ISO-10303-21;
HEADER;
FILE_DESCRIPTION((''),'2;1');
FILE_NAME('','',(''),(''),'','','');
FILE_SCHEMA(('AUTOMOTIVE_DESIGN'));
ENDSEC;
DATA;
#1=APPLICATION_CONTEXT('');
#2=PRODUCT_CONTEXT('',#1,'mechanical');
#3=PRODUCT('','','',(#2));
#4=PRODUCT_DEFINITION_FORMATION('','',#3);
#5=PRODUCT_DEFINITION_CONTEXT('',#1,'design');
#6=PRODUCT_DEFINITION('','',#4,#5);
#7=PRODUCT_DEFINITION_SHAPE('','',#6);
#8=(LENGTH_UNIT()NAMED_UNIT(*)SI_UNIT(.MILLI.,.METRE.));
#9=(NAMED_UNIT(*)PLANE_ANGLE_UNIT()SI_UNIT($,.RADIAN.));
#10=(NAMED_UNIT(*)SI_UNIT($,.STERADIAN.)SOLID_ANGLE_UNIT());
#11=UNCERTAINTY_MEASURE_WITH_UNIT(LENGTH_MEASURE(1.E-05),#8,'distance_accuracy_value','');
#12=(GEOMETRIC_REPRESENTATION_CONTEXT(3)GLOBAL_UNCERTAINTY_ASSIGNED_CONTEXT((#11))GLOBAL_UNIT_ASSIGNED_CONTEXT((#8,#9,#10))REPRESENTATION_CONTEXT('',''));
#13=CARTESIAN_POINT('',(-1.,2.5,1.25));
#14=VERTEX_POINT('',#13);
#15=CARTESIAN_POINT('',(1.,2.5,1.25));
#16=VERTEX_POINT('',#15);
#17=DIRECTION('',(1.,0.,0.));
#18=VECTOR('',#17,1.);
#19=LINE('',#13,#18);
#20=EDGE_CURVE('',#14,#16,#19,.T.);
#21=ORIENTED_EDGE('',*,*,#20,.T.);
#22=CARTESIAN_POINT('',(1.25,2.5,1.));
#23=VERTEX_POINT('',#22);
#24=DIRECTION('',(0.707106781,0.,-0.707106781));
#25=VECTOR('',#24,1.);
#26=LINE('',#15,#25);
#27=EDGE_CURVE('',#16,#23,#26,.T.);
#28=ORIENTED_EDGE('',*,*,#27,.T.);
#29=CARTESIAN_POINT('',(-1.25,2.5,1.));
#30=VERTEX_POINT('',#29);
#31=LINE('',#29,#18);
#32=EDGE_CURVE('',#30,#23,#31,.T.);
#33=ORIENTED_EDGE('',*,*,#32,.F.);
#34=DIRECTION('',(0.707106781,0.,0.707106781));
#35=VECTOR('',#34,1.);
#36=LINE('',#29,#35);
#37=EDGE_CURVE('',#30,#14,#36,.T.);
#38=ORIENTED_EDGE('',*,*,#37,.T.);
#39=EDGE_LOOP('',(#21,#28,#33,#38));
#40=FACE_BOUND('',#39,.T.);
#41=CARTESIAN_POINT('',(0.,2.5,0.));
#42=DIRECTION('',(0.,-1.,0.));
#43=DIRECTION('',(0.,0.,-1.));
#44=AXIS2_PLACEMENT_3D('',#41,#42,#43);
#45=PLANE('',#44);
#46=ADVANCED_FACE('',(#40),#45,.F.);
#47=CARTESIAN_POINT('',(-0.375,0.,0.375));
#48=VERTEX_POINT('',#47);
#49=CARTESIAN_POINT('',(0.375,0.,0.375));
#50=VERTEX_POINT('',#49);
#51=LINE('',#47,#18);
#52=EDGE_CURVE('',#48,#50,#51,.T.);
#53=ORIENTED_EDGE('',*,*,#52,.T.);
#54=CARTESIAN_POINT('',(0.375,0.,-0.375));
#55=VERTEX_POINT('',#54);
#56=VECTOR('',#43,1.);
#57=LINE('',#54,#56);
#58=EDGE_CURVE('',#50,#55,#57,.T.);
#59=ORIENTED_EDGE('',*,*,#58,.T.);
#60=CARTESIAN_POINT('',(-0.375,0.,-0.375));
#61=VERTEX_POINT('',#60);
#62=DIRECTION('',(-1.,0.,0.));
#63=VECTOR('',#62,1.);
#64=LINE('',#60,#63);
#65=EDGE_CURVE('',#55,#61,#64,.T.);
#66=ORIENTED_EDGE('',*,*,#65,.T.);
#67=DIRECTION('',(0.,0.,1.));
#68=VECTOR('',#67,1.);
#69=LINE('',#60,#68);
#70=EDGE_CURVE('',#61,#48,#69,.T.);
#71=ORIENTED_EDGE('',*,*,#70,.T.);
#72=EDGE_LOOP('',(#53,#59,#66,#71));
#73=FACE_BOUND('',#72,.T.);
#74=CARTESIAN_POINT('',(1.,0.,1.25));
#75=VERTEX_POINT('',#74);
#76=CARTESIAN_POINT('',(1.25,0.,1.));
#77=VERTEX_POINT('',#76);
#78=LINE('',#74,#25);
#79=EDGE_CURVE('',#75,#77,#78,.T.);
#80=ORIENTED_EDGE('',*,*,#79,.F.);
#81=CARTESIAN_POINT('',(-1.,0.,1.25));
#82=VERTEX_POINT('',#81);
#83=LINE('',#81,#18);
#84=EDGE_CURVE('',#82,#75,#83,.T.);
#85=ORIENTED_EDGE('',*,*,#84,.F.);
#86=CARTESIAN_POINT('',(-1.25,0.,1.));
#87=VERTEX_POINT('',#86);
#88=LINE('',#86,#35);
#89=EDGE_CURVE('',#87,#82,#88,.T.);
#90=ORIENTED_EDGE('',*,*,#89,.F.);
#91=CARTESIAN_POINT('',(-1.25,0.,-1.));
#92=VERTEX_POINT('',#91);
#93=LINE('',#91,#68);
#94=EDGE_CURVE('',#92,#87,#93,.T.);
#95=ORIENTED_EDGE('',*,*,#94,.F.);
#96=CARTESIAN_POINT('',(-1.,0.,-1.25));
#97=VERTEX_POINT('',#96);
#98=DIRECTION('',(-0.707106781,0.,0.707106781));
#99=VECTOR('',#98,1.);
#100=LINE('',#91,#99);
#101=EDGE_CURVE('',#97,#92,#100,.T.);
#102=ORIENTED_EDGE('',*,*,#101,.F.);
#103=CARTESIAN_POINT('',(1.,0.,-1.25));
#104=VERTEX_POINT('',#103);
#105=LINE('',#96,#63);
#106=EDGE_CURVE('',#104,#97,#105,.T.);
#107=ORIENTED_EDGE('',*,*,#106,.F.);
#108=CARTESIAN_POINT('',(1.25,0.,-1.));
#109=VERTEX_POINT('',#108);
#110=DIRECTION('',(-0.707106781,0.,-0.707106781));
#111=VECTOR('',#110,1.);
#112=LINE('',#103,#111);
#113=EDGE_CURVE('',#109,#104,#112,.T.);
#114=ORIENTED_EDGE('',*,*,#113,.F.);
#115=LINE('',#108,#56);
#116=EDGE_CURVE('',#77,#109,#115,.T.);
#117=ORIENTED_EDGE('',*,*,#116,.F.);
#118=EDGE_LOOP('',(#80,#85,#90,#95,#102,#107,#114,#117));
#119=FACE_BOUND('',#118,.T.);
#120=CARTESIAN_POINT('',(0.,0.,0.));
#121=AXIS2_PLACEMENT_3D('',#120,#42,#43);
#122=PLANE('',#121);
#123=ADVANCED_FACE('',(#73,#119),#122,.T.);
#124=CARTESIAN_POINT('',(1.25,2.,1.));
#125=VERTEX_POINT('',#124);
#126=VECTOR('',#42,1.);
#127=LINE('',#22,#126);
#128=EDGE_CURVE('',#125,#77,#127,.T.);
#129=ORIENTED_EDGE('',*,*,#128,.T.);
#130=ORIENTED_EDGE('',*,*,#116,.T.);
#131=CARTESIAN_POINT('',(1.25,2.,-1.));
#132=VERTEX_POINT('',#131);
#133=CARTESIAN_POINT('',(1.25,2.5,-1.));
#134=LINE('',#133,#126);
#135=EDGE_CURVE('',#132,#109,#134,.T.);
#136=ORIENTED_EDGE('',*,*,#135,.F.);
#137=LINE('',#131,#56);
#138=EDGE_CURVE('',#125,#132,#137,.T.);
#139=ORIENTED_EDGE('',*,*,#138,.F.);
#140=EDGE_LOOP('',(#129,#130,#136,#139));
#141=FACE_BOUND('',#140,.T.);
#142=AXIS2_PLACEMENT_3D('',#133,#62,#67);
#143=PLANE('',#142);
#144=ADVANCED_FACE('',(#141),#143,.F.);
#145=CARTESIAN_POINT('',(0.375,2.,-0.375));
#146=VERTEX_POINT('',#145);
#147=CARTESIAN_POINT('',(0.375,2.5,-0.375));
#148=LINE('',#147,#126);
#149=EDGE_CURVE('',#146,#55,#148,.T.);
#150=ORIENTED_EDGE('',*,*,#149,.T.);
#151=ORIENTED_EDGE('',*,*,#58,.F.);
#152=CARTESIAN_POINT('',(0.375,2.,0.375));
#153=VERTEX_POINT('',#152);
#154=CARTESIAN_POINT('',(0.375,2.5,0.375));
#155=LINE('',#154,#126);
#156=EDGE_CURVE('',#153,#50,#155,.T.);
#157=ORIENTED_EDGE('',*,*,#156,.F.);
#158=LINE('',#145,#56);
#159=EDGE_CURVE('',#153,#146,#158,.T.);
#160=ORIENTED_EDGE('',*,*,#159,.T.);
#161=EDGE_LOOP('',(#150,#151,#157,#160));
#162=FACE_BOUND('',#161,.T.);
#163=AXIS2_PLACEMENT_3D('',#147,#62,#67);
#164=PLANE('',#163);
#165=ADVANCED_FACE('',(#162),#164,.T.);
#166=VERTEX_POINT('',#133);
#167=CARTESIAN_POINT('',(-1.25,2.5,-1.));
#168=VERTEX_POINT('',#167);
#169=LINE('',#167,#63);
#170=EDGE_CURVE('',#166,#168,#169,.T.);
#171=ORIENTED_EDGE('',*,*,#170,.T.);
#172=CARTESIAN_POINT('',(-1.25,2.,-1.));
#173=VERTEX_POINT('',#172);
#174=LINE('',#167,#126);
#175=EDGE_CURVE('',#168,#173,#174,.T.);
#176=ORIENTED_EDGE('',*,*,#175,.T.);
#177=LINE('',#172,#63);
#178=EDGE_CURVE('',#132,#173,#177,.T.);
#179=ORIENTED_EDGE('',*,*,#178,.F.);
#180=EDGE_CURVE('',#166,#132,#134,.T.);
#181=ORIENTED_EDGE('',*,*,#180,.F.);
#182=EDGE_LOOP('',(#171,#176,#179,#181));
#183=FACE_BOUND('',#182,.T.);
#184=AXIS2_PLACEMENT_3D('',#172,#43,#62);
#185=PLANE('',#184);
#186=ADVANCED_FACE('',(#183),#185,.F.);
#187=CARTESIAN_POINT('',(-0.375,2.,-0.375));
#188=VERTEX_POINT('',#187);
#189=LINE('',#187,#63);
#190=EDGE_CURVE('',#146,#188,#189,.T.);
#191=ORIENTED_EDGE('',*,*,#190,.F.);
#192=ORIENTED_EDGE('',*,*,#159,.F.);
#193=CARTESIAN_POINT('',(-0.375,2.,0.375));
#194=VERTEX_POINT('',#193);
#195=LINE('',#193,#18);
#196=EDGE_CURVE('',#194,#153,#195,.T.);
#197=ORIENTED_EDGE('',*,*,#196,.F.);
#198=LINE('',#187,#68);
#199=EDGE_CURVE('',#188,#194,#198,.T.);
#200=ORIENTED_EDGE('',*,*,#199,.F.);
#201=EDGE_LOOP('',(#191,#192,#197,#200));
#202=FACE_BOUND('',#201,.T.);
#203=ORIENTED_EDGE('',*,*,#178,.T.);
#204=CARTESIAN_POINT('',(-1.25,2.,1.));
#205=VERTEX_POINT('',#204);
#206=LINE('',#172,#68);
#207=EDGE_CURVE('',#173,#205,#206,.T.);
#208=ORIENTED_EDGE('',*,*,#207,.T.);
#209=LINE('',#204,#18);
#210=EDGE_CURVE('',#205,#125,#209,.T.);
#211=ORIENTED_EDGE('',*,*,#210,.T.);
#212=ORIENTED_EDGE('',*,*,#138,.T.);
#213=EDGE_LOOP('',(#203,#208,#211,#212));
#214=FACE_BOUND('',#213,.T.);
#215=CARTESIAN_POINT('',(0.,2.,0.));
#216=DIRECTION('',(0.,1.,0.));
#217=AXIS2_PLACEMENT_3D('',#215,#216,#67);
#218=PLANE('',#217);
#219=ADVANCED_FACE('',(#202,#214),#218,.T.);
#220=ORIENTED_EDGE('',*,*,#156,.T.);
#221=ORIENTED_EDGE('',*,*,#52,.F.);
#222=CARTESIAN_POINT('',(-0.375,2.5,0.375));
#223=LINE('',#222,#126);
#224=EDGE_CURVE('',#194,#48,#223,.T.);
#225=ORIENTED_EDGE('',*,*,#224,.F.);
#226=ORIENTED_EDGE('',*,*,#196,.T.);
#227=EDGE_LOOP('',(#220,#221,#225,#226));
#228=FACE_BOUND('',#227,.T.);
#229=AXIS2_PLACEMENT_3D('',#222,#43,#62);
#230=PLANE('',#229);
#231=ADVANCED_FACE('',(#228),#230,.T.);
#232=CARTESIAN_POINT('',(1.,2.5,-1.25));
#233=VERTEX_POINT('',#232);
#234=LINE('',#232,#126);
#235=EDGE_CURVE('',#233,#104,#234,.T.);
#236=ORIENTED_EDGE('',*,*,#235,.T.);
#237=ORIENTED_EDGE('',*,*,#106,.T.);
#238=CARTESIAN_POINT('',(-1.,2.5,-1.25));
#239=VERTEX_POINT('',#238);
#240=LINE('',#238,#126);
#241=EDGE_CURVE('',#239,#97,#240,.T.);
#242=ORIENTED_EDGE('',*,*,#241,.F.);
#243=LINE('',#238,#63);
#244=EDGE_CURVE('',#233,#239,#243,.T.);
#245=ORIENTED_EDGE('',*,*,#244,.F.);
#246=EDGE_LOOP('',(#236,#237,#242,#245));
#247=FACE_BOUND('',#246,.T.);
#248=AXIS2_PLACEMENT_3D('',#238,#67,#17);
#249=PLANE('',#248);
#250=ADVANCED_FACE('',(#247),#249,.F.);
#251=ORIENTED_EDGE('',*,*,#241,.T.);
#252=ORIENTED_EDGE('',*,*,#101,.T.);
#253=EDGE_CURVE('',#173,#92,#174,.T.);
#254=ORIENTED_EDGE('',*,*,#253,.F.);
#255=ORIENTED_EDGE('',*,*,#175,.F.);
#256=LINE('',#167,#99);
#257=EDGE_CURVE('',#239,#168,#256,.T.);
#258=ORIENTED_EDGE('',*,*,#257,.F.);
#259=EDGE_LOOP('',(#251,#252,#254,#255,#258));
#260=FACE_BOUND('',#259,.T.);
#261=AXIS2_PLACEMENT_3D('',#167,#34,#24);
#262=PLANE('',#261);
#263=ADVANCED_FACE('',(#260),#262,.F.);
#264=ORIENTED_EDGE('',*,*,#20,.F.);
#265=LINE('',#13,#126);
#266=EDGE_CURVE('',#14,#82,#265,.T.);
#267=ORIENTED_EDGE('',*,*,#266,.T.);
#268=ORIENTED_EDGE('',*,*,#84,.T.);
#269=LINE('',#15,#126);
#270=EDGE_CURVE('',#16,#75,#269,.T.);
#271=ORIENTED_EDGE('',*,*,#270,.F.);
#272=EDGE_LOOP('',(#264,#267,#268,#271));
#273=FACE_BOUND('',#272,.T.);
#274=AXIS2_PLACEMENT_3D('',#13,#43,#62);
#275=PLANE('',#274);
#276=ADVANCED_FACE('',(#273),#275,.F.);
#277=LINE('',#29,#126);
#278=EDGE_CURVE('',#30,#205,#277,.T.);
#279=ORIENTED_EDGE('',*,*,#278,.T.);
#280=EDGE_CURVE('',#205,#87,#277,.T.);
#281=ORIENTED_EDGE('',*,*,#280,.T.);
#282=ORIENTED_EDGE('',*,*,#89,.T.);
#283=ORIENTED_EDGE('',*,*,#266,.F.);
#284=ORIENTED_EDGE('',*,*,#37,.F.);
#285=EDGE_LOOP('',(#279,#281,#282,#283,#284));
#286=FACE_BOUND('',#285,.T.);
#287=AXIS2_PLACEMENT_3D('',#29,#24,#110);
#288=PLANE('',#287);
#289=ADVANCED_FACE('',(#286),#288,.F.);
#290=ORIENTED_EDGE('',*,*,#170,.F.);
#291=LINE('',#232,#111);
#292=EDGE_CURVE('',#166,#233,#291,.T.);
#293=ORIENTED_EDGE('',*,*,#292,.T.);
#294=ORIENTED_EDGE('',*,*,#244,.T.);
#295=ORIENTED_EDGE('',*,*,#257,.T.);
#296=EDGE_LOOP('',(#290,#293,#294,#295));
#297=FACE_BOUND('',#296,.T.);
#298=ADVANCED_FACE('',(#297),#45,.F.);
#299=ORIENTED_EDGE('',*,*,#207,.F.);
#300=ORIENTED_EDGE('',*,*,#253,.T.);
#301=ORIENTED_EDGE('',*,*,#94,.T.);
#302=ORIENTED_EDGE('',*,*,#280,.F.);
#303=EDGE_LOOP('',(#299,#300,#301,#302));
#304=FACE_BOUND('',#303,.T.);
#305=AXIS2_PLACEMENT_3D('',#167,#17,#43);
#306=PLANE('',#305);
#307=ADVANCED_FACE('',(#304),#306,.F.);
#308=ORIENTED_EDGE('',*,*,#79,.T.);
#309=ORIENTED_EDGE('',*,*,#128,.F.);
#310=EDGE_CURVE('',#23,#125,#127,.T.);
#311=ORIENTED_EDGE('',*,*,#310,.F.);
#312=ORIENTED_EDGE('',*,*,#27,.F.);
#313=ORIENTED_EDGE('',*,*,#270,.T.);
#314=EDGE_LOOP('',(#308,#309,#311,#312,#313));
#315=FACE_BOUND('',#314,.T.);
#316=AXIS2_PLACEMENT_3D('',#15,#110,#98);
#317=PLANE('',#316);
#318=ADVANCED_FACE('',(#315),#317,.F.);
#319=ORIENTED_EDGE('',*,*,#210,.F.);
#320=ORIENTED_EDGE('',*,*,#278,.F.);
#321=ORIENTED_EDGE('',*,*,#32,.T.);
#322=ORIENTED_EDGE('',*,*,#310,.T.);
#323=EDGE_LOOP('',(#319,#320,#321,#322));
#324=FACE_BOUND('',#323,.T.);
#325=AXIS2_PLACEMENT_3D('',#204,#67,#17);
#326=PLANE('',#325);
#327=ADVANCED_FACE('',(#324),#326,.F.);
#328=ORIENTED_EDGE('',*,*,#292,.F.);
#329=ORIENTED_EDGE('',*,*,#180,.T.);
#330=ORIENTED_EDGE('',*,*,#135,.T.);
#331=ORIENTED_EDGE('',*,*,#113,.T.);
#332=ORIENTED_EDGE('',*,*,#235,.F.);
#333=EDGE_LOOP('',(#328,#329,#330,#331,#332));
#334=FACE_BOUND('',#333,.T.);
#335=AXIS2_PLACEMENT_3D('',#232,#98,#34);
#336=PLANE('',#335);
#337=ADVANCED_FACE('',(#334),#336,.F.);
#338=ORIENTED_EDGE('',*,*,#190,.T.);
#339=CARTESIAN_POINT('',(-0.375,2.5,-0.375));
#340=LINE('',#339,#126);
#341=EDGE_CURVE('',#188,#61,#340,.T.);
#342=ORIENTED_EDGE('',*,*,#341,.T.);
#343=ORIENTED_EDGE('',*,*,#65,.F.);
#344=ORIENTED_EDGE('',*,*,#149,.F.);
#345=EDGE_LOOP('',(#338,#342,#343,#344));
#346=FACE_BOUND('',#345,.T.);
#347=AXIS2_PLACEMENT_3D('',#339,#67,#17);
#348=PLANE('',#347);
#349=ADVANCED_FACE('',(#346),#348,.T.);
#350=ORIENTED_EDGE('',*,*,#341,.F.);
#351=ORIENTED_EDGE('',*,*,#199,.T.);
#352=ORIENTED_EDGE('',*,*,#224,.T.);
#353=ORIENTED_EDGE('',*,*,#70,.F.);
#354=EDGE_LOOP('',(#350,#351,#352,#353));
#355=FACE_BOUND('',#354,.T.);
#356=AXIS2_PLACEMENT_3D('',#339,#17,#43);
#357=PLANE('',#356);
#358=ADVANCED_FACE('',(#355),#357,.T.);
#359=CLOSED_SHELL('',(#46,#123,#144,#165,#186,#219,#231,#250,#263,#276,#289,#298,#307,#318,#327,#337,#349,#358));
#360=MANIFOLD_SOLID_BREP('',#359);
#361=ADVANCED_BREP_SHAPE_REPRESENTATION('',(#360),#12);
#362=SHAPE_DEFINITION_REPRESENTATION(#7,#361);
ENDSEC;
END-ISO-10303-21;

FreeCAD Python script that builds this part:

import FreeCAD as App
import Part
import Sketcher
from FreeCAD import Vector
Q = App.Units.Quantity

doc = App.newDocument("Part")
body = doc.addObject("PartDesign::Body", "Body")

# Sketch on XZ plane
sketch1 = body.newObject("Sketcher::SketchObject", "Sketch")
sketch1.AttachmentSupport = (doc.getObject("XZ_Plane"), [""])
sketch1.MapMode = "FlatFace"
sketch1.addGeometry([
    Part.LineSegment(Vector(-1, -1.25, 0), Vector(-1.25, -1, 0)),  # 0
    Part.LineSegment(Vector(-1.25, -1, 0), Vector(-1.25, 1, 0)),  # 1
    Part.LineSegment(Vector(-1.25, 1, 0), Vector(-1, 1.25, 0)),  # 2
    Part.LineSegment(Vector(-1, 1.25, 0), Vector(1, 1.25, 0)),  # 3
    Part.LineSegment(Vector(1, 1.25, 0), Vector(1.25, 1, 0)),  # 4
    Part.LineSegment(Vector(1.25, 1, 0), Vector(1.25, -1, 0)),  # 5
    Part.LineSegment(Vector(1.25, -1, 0), Vector(1, -1.25, 0)),  # 6
    Part.LineSegment(Vector(1, -1.25, 0), Vector(-1, -1.25, 0)),  # 7
    Part.LineSegment(Vector(-0.38, 0.38, 0), Vector(-0.38, -0.38, 0)),  # 8
    Part.LineSegment(Vector(-0.38, -0.38, 0), Vector(0.38, -0.38, 0)),  # 9
    Part.LineSegment(Vector(0.38, -0.38, 0), Vector(0.38, 0.38, 0)),  # 10
    Part.LineSegment(Vector(0.38, 0.38, 0), Vector(-0.38, 0.38, 0)),  # 11
], False)
sketch1.addConstraint([
    Sketcher.Constraint("Coincident", 0, 2, 1, 1),
    Sketcher.Constraint("Coincident", 1, 2, 2, 1),
    Sketcher.Constraint("Coincident", 2, 2, 3, 1),
    Sketcher.Constraint("Coincident", 3, 2, 4, 1),
    Sketcher.Constraint("Coincident", 4, 2, 5, 1),
    Sketcher.Constraint("Coincident", 5, 2, 6, 1),
    Sketcher.Constraint("Coincident", 6, 2, 7, 1),
    Sketcher.Constraint("Coincident", 7, 2, 0, 1),
    Sketcher.Constraint("Coincident", 8, 2, 9, 1),
    Sketcher.Constraint("Coincident", 9, 2, 10, 1),
    Sketcher.Constraint("Coincident", 10, 2, 11, 1),
    Sketcher.Constraint("Coincident", 11, 2, 8, 1),
    Sketcher.Constraint("Vertical", 1),
    Sketcher.Constraint("Horizontal", 3),
    Sketcher.Constraint("Vertical", 5),
    Sketcher.Constraint("Horizontal", 7),
    Sketcher.Constraint("Vertical", 8),
    Sketcher.Constraint("Horizontal", 9),
    Sketcher.Constraint("Vertical", 10),
    Sketcher.Constraint("Horizontal", 11),
    Sketcher.Constraint("Symmetric", 0, 2, 4, 2, -1, 1),
    Sketcher.Constraint("Symmetric", 2, 2, 6, 2, -1, 1),
    Sketcher.Constraint("Symmetric", 8, 2, 10, 2, -1, 1),
    Sketcher.Constraint("Perpendicular", 0, 2),
    Sketcher.Constraint("Perpendicular", 2, 4),
    Sketcher.Constraint("Perpendicular", 4, 6),
    Sketcher.Constraint("Horizontal", 1, 2, 4, 2),
    Sketcher.Constraint("Vertical", 3, 2, 6, 2),
    Sketcher.Constraint("Equal", 7, 1),
    Sketcher.Constraint("Equal", 11, 8),
    Sketcher.Constraint("DistanceX", 3, 1, 3, 2, Q("2 mm")),
    Sketcher.Constraint("DistanceX", 9, 1, 9, 2, Q("0.75 mm")),
    Sketcher.Constraint("DistanceX", 1, 2, 4, 2, Q("2.5 mm")),
])
pad1 = body.newObject("PartDesign::Pad", "Pad")
pad1.Profile = sketch1
pad1.Length = 2.5
pad1.Reversed = True

# Sketch on XZ plane
sketch2 = body.newObject("Sketcher::SketchObject", "Sketch001")
sketch2.AttachmentSupport = (doc.getObject("XZ_Plane"), [""])
sketch2.MapMode = "FlatFace"
sketch2.AttachmentOffset = App.Placement(Vector(0, 0, -2.5), App.Rotation())
sketch2.addGeometry([
    Part.LineSegment(Vector(-1.2, -1, 0), Vector(-1.2, 1, 0)),
    Part.LineSegment(Vector(-1.2, 1, 0), Vector(1.2, 1, 0)),
    Part.LineSegment(Vector(1.2, 1, 0), Vector(1.2, -1, 0)),
    Part.LineSegment(Vector(1.2, -1, 0), Vector(-1.2, -1, 0)),
], False)
sketch2.addConstraint([
    Sketcher.Constraint("Coincident", 0, 2, 1, 1),
    Sketcher.Constraint("Coincident", 1, 2, 2, 1),
    Sketcher.Constraint("Coincident", 2, 2, 3, 1),
    Sketcher.Constraint("Coincident", 3, 2, 0, 1),
    Sketcher.Constraint("Vertical", 0),
    Sketcher.Constraint("Horizontal", 1),
    Sketcher.Constraint("Vertical", 2),
    Sketcher.Constraint("Horizontal", 3),
    Sketcher.Constraint("Symmetric", 0, 2, 2, 2, -1, 1),
    Sketcher.Constraint("DistanceY", 0, 1, 0, 2, Q("2 mm")),
    Sketcher.Constraint("DistanceX", 1, 1, 1, 2, Q("2.5 mm")),
])
pocket1 = body.newObject("PartDesign::Pocket", "Pocket")
pocket1.Profile = sketch2
pocket1.Length = 0.5
pocket1.Reversed = True

doc.recompute()
